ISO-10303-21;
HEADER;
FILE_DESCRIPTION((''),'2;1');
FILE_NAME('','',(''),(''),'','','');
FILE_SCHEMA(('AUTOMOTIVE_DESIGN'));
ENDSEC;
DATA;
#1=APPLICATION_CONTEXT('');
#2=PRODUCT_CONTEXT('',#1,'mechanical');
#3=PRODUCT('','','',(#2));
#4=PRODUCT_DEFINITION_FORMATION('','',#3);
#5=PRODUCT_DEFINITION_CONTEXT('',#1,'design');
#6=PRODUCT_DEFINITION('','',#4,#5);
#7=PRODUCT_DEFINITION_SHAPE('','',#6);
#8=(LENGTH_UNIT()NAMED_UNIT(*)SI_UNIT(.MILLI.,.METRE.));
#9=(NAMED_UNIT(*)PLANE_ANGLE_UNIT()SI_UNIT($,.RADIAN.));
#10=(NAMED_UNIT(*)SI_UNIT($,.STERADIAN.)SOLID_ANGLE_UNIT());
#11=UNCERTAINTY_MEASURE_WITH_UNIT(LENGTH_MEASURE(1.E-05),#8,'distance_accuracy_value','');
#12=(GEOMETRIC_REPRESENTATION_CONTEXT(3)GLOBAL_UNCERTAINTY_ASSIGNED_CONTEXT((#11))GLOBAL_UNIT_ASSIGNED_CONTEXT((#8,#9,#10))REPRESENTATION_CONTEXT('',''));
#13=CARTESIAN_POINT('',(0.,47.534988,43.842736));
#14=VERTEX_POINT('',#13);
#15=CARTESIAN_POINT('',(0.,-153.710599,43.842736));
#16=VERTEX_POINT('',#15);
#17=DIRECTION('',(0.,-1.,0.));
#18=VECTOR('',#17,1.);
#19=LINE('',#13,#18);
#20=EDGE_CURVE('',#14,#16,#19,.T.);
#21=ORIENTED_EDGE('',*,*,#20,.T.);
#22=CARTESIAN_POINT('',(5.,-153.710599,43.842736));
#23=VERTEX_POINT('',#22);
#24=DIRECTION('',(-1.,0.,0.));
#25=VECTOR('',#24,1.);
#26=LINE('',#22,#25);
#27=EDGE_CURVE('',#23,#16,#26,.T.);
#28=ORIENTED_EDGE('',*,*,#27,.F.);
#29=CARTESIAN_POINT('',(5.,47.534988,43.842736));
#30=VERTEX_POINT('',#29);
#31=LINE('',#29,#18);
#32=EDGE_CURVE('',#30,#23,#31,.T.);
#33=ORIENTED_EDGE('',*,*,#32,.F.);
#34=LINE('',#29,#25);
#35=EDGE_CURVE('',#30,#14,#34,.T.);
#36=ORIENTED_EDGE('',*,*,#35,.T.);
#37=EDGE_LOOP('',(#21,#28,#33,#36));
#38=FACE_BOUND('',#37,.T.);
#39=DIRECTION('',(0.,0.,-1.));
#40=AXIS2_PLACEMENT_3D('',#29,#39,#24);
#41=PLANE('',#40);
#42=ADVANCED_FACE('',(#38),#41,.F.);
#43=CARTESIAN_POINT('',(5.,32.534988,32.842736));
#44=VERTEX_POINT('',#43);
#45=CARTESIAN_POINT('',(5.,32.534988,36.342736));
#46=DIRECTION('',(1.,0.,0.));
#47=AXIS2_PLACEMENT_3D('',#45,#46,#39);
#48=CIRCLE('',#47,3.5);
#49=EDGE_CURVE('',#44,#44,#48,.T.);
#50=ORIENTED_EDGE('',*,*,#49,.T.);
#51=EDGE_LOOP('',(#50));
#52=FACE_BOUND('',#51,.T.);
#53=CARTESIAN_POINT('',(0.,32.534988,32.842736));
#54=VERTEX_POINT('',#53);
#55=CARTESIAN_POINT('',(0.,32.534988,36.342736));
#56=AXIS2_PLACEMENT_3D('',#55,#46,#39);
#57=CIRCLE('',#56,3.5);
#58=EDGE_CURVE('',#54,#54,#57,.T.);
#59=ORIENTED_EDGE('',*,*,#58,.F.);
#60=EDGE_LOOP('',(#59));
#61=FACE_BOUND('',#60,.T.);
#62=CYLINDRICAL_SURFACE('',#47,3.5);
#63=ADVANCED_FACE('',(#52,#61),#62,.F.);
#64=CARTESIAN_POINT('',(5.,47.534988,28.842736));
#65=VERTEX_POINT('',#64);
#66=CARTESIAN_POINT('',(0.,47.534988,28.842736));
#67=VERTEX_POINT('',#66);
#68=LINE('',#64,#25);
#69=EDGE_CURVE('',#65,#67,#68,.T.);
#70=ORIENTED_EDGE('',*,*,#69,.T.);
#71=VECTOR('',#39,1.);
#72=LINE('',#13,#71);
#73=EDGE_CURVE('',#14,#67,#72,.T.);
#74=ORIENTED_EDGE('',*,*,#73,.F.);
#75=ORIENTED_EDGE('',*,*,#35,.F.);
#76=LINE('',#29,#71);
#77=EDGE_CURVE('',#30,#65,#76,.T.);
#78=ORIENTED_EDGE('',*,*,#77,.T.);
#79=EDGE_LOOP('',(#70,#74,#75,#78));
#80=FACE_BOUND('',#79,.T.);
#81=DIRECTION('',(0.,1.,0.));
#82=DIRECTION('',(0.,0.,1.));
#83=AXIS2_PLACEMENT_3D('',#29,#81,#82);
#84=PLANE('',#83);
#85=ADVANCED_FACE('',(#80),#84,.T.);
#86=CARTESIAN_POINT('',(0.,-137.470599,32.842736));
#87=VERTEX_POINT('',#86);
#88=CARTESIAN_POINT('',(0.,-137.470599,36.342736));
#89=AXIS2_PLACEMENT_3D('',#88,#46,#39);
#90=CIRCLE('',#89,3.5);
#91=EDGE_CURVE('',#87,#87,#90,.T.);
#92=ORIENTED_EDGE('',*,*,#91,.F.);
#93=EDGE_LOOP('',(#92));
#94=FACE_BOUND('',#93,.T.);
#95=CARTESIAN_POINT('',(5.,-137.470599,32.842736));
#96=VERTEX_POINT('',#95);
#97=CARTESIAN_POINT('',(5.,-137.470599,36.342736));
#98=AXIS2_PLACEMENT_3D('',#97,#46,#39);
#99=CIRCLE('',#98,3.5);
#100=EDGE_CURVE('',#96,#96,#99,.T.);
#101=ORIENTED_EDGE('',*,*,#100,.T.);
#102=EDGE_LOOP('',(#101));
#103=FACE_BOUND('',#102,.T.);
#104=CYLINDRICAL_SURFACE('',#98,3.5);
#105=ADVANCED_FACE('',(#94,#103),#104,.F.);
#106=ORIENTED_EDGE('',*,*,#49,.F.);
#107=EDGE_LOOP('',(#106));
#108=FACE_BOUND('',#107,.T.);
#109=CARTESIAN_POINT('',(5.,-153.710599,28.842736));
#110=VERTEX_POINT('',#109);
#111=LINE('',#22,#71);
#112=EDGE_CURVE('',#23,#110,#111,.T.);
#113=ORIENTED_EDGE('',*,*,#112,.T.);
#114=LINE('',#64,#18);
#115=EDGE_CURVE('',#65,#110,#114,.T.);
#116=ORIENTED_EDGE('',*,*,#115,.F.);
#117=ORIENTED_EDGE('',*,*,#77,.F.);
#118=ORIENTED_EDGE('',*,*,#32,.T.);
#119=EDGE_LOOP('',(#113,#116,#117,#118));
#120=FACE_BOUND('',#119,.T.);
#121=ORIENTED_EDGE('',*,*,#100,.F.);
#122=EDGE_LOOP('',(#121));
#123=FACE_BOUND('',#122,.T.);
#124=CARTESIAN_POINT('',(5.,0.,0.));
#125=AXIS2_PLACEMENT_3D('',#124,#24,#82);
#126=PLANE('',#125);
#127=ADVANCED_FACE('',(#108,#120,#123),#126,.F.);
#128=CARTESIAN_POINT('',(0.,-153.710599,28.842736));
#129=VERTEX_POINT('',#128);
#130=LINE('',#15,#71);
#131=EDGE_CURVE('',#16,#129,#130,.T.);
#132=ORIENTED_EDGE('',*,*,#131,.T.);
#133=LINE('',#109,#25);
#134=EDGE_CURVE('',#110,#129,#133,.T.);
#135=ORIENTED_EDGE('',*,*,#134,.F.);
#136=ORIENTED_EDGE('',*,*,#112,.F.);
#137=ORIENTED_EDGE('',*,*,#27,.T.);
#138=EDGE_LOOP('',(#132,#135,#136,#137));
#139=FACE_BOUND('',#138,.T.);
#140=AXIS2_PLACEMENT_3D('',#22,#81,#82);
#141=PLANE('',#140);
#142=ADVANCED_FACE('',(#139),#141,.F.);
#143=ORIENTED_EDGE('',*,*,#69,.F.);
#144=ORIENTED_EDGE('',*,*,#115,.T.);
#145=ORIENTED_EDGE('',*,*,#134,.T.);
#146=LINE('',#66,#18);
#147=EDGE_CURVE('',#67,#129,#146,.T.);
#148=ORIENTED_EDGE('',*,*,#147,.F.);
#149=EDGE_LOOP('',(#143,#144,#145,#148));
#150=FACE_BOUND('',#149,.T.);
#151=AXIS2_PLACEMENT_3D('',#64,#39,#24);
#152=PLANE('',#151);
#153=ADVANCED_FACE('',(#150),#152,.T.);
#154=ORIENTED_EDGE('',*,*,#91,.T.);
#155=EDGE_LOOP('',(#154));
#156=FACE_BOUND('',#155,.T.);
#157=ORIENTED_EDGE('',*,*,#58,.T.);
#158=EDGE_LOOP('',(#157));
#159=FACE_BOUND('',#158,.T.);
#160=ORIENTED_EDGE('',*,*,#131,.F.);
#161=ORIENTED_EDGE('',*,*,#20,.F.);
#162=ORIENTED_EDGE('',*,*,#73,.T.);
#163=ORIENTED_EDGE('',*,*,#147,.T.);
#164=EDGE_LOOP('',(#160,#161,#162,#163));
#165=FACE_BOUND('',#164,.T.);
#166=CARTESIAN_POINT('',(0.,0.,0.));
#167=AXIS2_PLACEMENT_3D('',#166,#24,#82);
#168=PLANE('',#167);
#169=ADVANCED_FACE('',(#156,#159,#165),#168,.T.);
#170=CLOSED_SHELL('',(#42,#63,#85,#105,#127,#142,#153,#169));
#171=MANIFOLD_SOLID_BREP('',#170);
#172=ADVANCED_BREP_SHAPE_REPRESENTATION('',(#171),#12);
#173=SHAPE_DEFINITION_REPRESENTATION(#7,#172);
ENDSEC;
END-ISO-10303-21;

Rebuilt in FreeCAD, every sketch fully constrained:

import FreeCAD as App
import Part
import Sketcher


def add_polygon(sketch, points):
    """Adds a closed chain of lines whose ends are joined by coincident constraints."""
    first, n = sketch.GeometryCount, len(points)
    for a, b in zip(points, points[1:] + points[:1]):
        sketch.addGeometry(Part.LineSegment(App.Vector(*a, 0), App.Vector(*b, 0)), False)
    for i in range(n):
        sketch.addConstraint(Sketcher.Constraint("Coincident", first + i, 2, first + (i + 1) % n, 1))

doc = App.newDocument("Part")
body = doc.addObject("PartDesign::Body", "Body")

# Sketch on YZ plane
sketch1 = body.newObject("Sketcher::SketchObject", "Sketch")
sketch1.AttachmentSupport = (doc.getObject("YZ_Plane"), [""])
sketch1.MapMode = "FlatFace"
add_polygon(sketch1, [(48, 44), (-154, 44), (-154, 29), (48, 29)])  # lines 0-3
sketch1.addConstraint(Sketcher.Constraint("Horizontal", 0))
sketch1.addConstraint(Sketcher.Constraint("Vertical", 1))
sketch1.addConstraint(Sketcher.Constraint("Horizontal", 2))
sketch1.addConstraint(Sketcher.Constraint("Vertical", 3))
sketch1.addConstraint(Sketcher.Constraint("DistanceY", 1, 2, 1, 1, 15.0))
sketch1.addConstraint(Sketcher.Constraint("DistanceX", 0, 2, -1, 1, 153.710599))
sketch1.addConstraint(Sketcher.Constraint("DistanceX", 0, 2, 0, 1, 201.245587))
sketch1.addConstraint(Sketcher.Constraint("DistanceY", -1, 1, 0, 2, 43.842736))
pad1 = body.newObject("PartDesign::Pad", "Pad")
pad1.Profile = sketch1
pad1.Length = 5

# Sketch on YZ plane
sketch2 = body.newObject("Sketcher::SketchObject", "Sketch001")
sketch2.AttachmentSupport = (doc.getObject("YZ_Plane"), [""])
sketch2.MapMode = "FlatFace"
sketch2.AttachmentOffset = App.Placement(App.Vector(0, 0, 5), App.Rotation())
sketch2.addGeometry(Part.Circle(App.Vector(32.5, 36.3, 0), App.Vector(0, 0, 1), 3.5), False)
sketch2.addGeometry(Part.Circle(App.Vector(-137.5, 36.3, 0), App.Vector(0, 0, 1), 3.5), False)
sketch2.addConstraint(Sketcher.Constraint("Equal", 0, 1))
sketch2.addConstraint(Sketcher.Constraint("Horizontal", 0, 3, 1, 3))
sketch2.addConstraint(Sketcher.Constraint("Diameter", 0, 7.0))
sketch2.addConstraint(Sketcher.Constraint("DistanceX", 1, 3, -1, 1, 137.470599))
sketch2.addConstraint(Sketcher.Constraint("DistanceX", -1, 1, 0, 3, 32.534988))
sketch2.addConstraint(Sketcher.Constraint("DistanceY", -1, 1, 0, 3, 36.342736))
doc.recompute()
hole = body.newObject("PartDesign::Hole", "Hole")
hole.Profile = sketch2
hole.ThreadType = "None"
hole.Diameter = 7
hole.DepthType = "ThroughAll"

doc.recompute()
